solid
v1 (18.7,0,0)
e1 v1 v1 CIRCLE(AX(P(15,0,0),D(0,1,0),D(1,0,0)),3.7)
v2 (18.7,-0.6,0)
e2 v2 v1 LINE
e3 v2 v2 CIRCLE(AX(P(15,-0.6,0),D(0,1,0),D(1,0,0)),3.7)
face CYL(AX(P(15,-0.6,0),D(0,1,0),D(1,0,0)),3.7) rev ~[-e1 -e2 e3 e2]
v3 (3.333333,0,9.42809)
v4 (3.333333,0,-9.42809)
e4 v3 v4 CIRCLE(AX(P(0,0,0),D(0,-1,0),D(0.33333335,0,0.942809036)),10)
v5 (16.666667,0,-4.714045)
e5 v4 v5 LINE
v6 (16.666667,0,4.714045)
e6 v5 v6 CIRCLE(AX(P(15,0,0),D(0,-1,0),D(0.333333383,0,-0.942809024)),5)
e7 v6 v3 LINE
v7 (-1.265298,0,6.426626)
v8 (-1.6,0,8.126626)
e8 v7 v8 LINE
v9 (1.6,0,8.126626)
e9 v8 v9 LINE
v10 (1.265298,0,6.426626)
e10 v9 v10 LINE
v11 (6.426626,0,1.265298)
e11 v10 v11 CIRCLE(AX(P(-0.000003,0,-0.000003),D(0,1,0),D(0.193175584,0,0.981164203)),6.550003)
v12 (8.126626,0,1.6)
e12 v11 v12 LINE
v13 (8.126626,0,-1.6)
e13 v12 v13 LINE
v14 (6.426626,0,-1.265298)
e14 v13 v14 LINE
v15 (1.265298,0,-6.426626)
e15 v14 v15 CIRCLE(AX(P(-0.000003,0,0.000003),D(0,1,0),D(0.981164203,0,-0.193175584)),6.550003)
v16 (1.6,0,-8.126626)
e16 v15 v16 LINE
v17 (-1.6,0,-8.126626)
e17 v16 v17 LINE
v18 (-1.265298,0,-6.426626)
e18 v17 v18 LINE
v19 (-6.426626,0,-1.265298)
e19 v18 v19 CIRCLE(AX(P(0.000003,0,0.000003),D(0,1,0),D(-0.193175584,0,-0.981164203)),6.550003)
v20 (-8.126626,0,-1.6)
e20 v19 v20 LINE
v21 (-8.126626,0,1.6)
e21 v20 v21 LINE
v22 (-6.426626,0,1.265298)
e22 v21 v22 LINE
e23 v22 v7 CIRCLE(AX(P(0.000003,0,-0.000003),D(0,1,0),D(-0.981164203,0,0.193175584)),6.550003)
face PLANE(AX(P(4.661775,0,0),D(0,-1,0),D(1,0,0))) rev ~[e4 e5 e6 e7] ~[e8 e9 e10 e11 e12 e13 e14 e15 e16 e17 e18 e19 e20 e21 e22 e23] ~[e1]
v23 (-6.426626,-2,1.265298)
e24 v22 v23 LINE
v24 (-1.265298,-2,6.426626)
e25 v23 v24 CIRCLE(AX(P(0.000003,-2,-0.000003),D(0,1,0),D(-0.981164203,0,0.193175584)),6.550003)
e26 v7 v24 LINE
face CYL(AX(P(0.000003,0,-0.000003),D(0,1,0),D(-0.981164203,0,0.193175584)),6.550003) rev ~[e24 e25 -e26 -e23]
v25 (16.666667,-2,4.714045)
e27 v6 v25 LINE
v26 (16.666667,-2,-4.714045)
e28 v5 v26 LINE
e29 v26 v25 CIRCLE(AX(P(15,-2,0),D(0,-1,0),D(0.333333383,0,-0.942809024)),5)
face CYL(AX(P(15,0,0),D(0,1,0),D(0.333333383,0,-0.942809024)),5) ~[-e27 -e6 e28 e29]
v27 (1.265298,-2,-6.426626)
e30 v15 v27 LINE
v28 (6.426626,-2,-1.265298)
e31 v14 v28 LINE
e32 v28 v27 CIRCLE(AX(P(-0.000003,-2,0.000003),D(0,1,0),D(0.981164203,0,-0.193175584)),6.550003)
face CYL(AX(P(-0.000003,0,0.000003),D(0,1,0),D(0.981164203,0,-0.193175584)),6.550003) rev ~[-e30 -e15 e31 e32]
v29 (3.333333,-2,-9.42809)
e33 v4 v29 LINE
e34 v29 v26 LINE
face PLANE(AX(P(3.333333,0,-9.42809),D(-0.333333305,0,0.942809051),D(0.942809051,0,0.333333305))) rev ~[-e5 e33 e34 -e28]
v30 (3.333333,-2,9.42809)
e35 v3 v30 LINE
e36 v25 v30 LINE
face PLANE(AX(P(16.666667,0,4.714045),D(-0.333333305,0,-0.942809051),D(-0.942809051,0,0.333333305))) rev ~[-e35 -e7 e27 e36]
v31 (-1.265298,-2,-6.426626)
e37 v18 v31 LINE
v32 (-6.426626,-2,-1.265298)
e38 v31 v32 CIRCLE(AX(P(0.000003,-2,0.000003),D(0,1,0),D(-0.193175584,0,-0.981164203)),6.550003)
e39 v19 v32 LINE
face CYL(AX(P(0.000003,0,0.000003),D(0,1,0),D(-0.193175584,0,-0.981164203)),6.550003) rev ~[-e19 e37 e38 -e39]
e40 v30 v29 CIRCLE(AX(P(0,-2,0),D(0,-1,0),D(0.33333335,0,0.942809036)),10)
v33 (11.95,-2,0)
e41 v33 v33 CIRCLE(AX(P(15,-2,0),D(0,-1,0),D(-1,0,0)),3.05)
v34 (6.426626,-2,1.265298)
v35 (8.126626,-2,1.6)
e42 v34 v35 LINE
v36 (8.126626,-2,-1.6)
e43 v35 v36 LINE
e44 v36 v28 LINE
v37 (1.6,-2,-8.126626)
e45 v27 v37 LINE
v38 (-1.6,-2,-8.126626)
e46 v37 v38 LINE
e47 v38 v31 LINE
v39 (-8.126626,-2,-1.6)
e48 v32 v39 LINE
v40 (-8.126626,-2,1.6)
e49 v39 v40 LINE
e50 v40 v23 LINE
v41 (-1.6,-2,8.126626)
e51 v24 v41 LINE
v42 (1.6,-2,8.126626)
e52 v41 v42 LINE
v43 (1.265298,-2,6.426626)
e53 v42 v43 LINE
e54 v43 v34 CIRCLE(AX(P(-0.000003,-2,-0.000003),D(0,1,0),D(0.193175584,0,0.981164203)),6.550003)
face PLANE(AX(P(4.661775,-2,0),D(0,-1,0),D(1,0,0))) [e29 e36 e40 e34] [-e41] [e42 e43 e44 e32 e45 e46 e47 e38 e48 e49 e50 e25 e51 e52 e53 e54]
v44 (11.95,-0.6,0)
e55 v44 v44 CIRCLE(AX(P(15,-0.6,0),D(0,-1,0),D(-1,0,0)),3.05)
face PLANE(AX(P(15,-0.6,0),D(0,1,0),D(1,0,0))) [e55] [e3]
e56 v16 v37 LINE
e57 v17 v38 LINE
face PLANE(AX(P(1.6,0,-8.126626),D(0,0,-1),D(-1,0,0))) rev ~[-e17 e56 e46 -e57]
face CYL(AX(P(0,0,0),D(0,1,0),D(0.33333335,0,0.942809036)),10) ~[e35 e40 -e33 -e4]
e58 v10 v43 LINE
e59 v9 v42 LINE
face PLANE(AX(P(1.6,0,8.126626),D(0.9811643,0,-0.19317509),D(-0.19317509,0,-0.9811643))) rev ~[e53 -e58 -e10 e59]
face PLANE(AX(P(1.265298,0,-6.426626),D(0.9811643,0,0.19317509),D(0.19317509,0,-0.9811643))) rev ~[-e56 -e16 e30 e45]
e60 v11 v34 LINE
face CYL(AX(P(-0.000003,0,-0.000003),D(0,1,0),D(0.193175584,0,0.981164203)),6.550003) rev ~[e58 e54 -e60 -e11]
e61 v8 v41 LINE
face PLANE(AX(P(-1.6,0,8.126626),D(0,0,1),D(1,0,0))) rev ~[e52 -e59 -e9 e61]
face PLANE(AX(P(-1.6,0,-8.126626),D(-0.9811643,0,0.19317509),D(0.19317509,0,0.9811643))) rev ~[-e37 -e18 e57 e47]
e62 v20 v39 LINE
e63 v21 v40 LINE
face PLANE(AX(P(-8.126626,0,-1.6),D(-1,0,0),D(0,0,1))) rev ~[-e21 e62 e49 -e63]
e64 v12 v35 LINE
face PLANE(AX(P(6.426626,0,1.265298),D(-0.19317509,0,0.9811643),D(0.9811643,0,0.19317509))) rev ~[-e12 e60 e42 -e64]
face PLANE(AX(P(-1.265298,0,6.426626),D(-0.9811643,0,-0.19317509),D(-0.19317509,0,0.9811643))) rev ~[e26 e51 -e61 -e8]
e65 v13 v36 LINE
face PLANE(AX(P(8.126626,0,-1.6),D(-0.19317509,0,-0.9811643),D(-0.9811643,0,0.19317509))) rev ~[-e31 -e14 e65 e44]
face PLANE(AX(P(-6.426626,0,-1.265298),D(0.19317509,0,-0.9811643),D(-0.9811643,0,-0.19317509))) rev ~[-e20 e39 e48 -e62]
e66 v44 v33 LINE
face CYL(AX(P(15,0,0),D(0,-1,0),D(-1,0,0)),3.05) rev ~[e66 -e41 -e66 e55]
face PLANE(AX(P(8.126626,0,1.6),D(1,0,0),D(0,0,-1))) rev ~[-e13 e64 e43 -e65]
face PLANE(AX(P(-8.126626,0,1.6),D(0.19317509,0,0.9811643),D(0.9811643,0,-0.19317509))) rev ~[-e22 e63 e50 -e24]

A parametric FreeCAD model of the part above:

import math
import FreeCAD as App
import Part
import Sketcher

doc = App.newDocument("Part")
body = doc.addObject("PartDesign::Body", "Body")

sketch1 = body.newObject("Sketcher::SketchObject", "Sketch")
sketch1.AttachmentSupport = (doc.getObject("XZ_Plane"), [""])
sketch1.MapMode = "FlatFace"
sketch1.addGeometry([
    Part.LineSegment(App.Vector(16.7, 4.7, 0), App.Vector(3.3, 9.4, 0)),
    Part.ArcOfCircle(Part.Circle(App.Vector(0, 0, 0), App.Vector(0, 0, 1), 10), math.radians(71), math.radians(289)),
    Part.LineSegment(App.Vector(3.3, -9.4, 0), App.Vector(16.7, -4.7, 0)),
    Part.ArcOfCircle(Part.Circle(App.Vector(15, 0, 0), App.Vector(0, 0, 1), 5), math.radians(-71), math.radians(71)),
    Part.LineSegment(App.Vector(1.6, 8.1, 0), App.Vector(1.3, 6.4, 0)),
    Part.ArcOfCircle(Part.Circle(App.Vector(0, 0, 0), App.Vector(0, 0, 1), 6.6), math.radians(11), math.radians(79)),
    Part.LineSegment(App.Vector(6.4, 1.3, 0), App.Vector(8.1, 1.6, 0)),
    Part.LineSegment(App.Vector(8.1, 1.6, 0), App.Vector(8.1, -1.6, 0)),
    Part.LineSegment(App.Vector(8.1, -1.6, 0), App.Vector(6.4, -1.3, 0)),
    Part.ArcOfCircle(Part.Circle(App.Vector(0, 0, 0), App.Vector(0, 0, 1), 6.6), math.radians(-79), math.radians(-11)),
    Part.LineSegment(App.Vector(1.3, -6.4, 0), App.Vector(1.6, -8.1, 0)),
    Part.LineSegment(App.Vector(1.6, -8.1, 0), App.Vector(-1.6, -8.1, 0)),
    Part.LineSegment(App.Vector(-1.6, -8.1, 0), App.Vector(-1.3, -6.4, 0)),
    Part.ArcOfCircle(Part.Circle(App.Vector(0, 0, 0), App.Vector(0, 0, 1), 6.6), math.radians(-169), math.radians(-101)),
    Part.LineSegment(App.Vector(-6.4, -1.3, 0), App.Vector(-8.1, -1.6, 0)),
    Part.LineSegment(App.Vector(-8.1, -1.6, 0), App.Vector(-8.1, 1.6, 0)),
    Part.LineSegment(App.Vector(-8.1, 1.6, 0), App.Vector(-6.4, 1.3, 0)),
    Part.ArcOfCircle(Part.Circle(App.Vector(0, 0, 0), App.Vector(0, 0, 1), 6.6), math.radians(101), math.radians(169)),
    Part.LineSegment(App.Vector(-1.3, 6.4, 0), App.Vector(-1.6, 8.1, 0)),
    Part.LineSegment(App.Vector(-1.6, 8.1, 0), App.Vector(1.6, 8.1, 0)),
], False)
sketch1.addConstraint([
    Sketcher.Constraint("Tangent", 0, 2, 1, 1),
    Sketcher.Constraint("Tangent", 1, 2, 2, 1),
    Sketcher.Constraint("Tangent", 2, 2, 3, 1),
    Sketcher.Constraint("Tangent", 3, 2, 0, 1),
    Sketcher.Constraint("Coincident", 4, 2, 5, 2),
    Sketcher.Constraint("Coincident", 5, 1, 6, 1),
    Sketcher.Constraint("Coincident", 6, 2, 7, 1),
    Sketcher.Constraint("Coincident", 7, 2, 8, 1),
    Sketcher.Constraint("Coincident", 8, 2, 9, 2),
    Sketcher.Constraint("Coincident", 9, 1, 10, 1),
    Sketcher.Constraint("Coincident", 10, 2, 11, 1),
    Sketcher.Constraint("Coincident", 11, 2, 12, 1),
    Sketcher.Constraint("Coincident", 12, 2, 13, 2),
    Sketcher.Constraint("Coincident", 13, 1, 14, 1),
    Sketcher.Constraint("Coincident", 14, 2, 15, 1),
    Sketcher.Constraint("Coincident", 15, 2, 16, 1),
    Sketcher.Constraint("Coincident", 16, 2, 17, 2),
    Sketcher.Constraint("Coincident", 17, 1, 18, 1),
    Sketcher.Constraint("Coincident", 18, 2, 19, 1),
    Sketcher.Constraint("Coincident", 19, 2, 4, 1),
    Sketcher.Constraint("Vertical", 7),
    Sketcher.Constraint("Horizontal", 11),
    Sketcher.Constraint("Vertical", 15),
    Sketcher.Constraint("Horizontal", 19),
    Sketcher.Constraint("Coincident", 1, 3, -1, 1),
    Sketcher.Constraint("Coincident", 5, 3, -1, 1),
    Sketcher.Constraint("Coincident", 9, 3, -1, 1),
    Sketcher.Constraint("Coincident", 13, 3, -1, 1),
    Sketcher.Constraint("Coincident", 17, 3, -1, 1),
    Sketcher.Constraint("Equal", 5, 9),
    Sketcher.Constraint("Equal", 9, 13),
    Sketcher.Constraint("Equal", 13, 17),
    Sketcher.Constraint("Symmetric", 6, 2, 14, 2, -1, 1),
    Sketcher.Constraint("Symmetric", 10, 2, 18, 2, -1, 1),
    Sketcher.Constraint("PointOnObject", 3, 3, -1),
    Sketcher.Constraint("Perpendicular", 4, 8),
    Sketcher.Constraint("Perpendicular", 6, 10),
    Sketcher.Constraint("Perpendicular", 8, 12),
    Sketcher.Constraint("Perpendicular", 10, 14),
    Sketcher.Constraint("Perpendicular", 12, 16),
    Sketcher.Constraint("Perpendicular", 14, 18),
    Sketcher.Constraint("Horizontal", 9, 1, 12, 2),
    Sketcher.Constraint("Horizontal", 8, 2, 13, 1),
    Sketcher.Constraint("Horizontal", 7, 2, 14, 2),
    Sketcher.Constraint("Horizontal", 6, 2, 15, 2),
    Sketcher.Constraint("Horizontal", 4, 2, 17, 1),
    Sketcher.Constraint("Equal", 19, 7),
    Sketcher.Constraint("Equal", 4, 6),
    Sketcher.Constraint("Radius", 1, 10.0),
    Sketcher.Constraint("Radius", 3, 5.0),
    Sketcher.Constraint("DistanceX", 11, 2, 11, 1, 3.2),
    Sketcher.Constraint("DistanceX", -1, 1, 3, 3, 15.0),
    Sketcher.Constraint("DistanceX", 5, 1, 6, 2, 1.7),
    Sketcher.Constraint("Radius", 5, 6.550003),
    Sketcher.Constraint("DistanceX", 9, 3, 4, 2, 1.265301),
])
pad1 = body.newObject("PartDesign::Pad", "Pad")
pad1.Profile = sketch1
pad1.Length = 2

sketch2 = body.newObject("Sketcher::SketchObject", "Sketch001")
sketch2.AttachmentSupport = (doc.getObject("XZ_Plane"), [""])
sketch2.MapMode = "FlatFace"
sketch2.addGeometry(Part.Circle(App.Vector(15, 0, 0), App.Vector(0, 0, 1), 3), False)
sketch2.addConstraint([
    Sketcher.Constraint("PointOnObject", 0, 3, -1),
    Sketcher.Constraint("Diameter", 0, 6.1),
    Sketcher.Constraint("DistanceX", -1, 1, 0, 3, 15.0),
])
doc.recompute()
hole = body.newObject("PartDesign::Hole", "Hole")
hole.Profile = sketch2
hole.ThreadType = "None"
hole.Diameter = 6.1
hole.DepthType = "ThroughAll"
hole.HoleCutType = "Counterbore"
hole.HoleCutDiameter = 7.4
hole.HoleCutDepth = 0.6
hole.Reversed = True

doc.recompute()
